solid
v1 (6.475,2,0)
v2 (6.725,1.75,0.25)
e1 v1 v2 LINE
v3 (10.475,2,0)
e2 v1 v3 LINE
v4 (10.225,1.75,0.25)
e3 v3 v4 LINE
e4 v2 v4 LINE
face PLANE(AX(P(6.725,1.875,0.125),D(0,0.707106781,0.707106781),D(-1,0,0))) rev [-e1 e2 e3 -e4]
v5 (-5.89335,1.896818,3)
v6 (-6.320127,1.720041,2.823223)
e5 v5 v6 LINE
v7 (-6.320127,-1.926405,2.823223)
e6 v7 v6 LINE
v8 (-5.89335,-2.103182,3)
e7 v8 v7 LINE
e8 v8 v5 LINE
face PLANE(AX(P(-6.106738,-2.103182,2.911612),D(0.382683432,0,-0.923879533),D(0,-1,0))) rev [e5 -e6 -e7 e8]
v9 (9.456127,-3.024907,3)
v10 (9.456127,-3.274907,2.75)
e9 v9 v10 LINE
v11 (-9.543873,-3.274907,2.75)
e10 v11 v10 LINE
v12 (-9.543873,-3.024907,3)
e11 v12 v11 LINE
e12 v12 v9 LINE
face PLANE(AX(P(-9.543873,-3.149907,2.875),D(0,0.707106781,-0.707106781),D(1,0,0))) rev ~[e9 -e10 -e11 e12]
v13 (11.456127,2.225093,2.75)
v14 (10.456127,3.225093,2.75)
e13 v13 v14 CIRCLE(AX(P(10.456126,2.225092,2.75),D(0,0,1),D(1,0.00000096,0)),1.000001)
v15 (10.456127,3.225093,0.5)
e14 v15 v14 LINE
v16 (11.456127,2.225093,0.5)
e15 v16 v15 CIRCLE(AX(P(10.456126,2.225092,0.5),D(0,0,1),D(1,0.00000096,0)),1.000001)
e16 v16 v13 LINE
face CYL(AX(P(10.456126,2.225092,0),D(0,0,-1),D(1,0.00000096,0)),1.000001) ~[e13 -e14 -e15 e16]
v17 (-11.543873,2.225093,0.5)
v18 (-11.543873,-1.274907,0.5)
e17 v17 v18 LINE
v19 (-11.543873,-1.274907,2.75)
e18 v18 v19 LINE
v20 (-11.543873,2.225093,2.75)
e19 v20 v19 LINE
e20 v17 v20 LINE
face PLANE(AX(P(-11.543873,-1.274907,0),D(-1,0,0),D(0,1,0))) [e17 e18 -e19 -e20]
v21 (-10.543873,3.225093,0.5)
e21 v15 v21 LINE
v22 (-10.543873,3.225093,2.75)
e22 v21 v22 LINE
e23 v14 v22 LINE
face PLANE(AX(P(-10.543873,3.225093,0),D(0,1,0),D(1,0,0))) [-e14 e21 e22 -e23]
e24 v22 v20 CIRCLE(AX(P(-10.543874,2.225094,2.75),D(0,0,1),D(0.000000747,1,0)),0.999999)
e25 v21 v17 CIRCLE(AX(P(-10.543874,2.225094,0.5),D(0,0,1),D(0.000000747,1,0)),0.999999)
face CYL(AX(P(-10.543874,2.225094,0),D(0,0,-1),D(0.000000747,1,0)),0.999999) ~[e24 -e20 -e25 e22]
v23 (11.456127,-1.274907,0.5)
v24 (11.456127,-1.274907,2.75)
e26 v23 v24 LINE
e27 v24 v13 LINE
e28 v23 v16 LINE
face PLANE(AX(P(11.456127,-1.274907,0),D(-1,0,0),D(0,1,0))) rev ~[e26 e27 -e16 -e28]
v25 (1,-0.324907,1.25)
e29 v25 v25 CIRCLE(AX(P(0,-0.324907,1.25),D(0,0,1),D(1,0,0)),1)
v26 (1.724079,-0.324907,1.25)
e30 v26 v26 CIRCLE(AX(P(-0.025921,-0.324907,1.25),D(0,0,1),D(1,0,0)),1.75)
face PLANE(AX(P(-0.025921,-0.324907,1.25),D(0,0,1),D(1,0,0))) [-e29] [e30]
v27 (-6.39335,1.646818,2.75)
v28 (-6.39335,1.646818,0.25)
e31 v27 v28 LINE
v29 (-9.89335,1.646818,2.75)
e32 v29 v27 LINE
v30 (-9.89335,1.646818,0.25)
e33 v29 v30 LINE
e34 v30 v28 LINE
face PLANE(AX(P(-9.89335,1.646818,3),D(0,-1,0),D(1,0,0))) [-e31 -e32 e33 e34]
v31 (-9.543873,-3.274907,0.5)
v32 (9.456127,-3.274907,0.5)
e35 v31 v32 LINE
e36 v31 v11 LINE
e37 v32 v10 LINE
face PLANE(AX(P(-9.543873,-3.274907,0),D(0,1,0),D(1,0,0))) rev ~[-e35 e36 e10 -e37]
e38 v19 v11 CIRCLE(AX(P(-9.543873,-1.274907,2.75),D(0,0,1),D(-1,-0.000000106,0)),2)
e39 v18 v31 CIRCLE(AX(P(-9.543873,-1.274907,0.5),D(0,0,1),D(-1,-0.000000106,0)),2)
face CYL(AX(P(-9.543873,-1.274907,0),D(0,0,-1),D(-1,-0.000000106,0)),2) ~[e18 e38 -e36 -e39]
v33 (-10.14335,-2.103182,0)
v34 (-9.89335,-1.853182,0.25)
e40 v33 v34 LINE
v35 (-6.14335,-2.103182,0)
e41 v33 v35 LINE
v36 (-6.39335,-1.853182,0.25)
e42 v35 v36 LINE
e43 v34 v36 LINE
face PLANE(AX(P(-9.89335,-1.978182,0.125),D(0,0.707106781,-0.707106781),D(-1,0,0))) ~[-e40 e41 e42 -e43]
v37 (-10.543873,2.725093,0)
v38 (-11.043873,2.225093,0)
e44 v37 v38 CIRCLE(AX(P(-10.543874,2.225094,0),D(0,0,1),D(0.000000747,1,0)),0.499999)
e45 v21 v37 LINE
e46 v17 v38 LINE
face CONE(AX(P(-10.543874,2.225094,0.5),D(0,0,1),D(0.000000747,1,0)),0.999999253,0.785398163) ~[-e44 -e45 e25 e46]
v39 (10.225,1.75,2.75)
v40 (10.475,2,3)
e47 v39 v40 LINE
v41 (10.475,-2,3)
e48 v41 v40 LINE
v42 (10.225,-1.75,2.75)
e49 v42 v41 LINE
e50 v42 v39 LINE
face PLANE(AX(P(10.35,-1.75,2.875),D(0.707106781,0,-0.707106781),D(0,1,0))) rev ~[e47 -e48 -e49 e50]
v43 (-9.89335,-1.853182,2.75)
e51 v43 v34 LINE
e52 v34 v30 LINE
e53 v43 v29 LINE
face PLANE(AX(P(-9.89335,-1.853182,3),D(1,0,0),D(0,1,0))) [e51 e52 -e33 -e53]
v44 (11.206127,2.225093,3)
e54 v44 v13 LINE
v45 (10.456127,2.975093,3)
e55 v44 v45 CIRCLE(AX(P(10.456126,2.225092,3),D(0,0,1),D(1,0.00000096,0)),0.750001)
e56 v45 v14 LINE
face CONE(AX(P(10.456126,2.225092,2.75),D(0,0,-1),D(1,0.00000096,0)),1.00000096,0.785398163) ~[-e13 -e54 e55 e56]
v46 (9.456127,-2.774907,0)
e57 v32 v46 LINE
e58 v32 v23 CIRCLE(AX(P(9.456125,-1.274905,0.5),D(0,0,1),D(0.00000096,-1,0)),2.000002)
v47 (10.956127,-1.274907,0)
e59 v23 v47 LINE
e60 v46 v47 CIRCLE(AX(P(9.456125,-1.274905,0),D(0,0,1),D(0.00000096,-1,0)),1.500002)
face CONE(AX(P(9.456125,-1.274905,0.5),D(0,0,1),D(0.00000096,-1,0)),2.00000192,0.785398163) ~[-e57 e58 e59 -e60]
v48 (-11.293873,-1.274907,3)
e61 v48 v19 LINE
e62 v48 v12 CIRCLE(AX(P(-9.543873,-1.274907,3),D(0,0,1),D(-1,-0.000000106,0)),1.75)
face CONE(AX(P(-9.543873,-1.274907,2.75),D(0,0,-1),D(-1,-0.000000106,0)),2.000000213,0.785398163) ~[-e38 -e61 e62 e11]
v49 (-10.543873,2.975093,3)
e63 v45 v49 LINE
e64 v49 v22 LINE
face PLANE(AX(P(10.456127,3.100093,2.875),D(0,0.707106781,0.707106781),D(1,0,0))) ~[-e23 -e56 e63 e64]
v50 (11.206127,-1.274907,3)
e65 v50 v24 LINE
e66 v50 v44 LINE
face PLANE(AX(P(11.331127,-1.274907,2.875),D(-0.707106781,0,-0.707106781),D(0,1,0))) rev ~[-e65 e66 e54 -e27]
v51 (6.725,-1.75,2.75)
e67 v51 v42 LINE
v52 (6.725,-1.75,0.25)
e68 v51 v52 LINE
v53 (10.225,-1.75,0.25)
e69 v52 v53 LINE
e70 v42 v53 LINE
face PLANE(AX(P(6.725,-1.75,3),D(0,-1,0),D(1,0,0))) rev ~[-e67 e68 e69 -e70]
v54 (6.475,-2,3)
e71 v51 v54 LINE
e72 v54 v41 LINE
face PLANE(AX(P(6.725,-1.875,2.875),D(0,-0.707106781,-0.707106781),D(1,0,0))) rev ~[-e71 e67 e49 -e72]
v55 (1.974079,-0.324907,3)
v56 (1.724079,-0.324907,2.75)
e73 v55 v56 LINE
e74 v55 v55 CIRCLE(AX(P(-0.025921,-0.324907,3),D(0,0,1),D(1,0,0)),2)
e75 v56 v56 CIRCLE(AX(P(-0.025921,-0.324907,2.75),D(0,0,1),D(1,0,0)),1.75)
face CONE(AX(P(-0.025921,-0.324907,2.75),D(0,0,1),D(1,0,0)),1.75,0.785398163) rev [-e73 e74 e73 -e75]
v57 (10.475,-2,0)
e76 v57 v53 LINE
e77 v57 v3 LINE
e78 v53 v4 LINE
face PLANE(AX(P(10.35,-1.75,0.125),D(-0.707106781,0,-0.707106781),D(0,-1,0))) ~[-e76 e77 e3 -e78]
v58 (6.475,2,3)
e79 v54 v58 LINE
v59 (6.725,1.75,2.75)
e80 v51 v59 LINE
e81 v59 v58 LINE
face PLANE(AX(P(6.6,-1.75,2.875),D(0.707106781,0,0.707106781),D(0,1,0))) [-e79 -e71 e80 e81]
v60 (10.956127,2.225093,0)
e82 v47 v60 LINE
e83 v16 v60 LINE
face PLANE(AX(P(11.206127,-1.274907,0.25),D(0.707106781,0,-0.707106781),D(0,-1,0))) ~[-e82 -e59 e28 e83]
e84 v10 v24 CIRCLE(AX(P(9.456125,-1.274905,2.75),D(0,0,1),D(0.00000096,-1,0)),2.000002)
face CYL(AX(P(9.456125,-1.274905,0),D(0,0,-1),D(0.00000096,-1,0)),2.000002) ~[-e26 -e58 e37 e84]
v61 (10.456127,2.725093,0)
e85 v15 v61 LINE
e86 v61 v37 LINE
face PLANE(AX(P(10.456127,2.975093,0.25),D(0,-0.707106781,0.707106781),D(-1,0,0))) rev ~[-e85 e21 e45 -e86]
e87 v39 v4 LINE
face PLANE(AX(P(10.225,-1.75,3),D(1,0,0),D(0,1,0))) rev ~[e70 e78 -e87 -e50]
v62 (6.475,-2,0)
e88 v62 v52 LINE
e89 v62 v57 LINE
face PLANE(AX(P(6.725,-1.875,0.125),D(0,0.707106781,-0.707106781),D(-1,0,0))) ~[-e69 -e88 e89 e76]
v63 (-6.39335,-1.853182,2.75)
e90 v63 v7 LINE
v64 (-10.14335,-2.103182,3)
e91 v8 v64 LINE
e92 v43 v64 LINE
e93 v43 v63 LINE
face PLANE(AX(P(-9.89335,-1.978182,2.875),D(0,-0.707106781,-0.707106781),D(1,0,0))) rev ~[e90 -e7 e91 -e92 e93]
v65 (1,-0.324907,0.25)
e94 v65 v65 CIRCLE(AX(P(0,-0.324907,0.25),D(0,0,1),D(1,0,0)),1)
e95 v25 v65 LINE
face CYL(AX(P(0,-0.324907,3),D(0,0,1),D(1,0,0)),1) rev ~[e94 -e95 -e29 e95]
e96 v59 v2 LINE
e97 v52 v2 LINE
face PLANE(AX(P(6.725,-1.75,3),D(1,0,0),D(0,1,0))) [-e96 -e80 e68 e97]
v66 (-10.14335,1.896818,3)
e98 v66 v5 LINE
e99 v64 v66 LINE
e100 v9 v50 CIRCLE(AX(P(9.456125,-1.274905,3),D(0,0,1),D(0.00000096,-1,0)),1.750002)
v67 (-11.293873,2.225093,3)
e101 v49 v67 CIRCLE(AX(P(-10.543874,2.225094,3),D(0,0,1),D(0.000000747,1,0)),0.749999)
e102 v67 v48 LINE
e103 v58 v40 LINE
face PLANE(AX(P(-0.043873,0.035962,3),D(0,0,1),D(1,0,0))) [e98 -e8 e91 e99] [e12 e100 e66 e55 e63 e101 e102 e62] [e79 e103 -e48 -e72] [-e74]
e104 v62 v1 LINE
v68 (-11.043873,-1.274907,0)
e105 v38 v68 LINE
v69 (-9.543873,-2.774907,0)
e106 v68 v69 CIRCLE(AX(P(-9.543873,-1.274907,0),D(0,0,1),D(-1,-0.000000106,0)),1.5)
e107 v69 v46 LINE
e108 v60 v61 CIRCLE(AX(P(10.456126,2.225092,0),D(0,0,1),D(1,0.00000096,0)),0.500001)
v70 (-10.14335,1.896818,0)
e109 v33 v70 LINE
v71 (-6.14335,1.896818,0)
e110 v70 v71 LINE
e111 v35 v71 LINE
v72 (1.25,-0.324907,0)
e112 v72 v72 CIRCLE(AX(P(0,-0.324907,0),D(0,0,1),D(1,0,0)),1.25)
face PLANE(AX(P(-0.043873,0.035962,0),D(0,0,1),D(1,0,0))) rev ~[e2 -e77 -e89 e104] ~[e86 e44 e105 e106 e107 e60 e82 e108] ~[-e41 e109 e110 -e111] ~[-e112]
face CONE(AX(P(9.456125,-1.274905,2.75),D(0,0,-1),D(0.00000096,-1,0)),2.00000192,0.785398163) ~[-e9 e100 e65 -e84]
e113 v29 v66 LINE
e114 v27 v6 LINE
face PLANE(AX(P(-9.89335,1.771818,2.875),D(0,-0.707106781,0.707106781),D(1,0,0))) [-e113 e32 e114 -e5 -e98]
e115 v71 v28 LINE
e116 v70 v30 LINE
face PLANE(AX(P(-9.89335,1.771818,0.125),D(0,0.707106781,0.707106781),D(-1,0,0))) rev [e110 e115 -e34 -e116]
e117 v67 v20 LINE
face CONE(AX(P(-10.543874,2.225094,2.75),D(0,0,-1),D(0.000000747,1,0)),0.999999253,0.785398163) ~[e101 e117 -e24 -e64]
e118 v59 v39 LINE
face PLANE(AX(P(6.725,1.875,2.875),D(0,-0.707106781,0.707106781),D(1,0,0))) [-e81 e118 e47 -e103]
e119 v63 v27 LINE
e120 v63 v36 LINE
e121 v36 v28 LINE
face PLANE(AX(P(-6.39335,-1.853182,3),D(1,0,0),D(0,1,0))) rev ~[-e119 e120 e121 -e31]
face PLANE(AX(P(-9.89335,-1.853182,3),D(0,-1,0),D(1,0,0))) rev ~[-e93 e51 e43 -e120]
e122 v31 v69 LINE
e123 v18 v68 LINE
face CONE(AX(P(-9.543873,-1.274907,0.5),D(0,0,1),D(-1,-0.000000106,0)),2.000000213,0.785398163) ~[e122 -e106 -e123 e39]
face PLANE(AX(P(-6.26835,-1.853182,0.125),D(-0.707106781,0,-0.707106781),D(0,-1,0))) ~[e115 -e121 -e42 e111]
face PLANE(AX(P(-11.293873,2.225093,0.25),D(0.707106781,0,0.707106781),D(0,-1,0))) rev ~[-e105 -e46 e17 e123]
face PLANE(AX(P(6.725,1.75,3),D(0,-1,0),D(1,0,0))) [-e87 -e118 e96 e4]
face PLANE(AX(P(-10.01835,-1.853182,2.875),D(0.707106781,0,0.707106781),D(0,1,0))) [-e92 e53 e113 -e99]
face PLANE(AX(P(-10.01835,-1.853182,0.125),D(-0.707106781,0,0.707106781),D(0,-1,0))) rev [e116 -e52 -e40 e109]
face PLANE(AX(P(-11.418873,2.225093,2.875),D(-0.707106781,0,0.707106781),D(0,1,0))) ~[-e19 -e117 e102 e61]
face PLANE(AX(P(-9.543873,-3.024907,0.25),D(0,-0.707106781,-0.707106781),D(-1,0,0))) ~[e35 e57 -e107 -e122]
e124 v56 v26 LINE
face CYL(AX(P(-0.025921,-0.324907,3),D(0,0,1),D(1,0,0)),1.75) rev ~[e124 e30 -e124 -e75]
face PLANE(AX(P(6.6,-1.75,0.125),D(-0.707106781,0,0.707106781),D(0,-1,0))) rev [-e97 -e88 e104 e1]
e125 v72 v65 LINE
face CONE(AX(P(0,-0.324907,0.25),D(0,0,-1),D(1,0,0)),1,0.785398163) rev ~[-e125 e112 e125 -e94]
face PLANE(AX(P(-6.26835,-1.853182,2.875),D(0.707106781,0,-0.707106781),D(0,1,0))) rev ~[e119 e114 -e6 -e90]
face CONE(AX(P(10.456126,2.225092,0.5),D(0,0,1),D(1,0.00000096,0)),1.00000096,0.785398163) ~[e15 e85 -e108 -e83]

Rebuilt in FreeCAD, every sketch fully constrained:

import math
import FreeCAD as App
import Part
import Sketcher
from FreeCAD import Vector


def edges_at(feature, points):
    """Names of the edges that pass closest to the given points."""
    edges = feature.Shape.Edges
    near = lambda p: min(range(len(edges)), key=lambda i: edges[i].distToShape(Part.Vertex(*p))[0])
    return sorted({f"Edge{near(p) + 1}" for p in points})

doc = App.newDocument("Part")
body = doc.addObject("PartDesign::Body", "Body")

# Sketch on XY plane
sketch1 = doc.addObject("Sketcher::SketchObject", "Sketch")
body.addObject(sketch1)
sketch1.AttachmentSupport = (doc.XY_Plane, [""])
sketch1.MapMode = "FlatFace"
sketch1.addGeometry([
    Part.LineSegment(Vector(-9.5, -3.3, 0), Vector(9.5, -3.3, 0)),  # 0
    Part.ArcOfCircle(Part.Circle(Vector(9.5, -1.3, 0), Vector(0, 0, 1), 2), math.radians(-90), math.radians(0)),  # 1
    Part.LineSegment(Vector(11.5, -1.3, 0), Vector(11.5, 2.2, 0)),  # 2
    Part.ArcOfCircle(Part.Circle(Vector(10.5, 2.2, 0), Vector(0, 0, 1), 1), math.radians(0), math.radians(90)),  # 3
    Part.LineSegment(Vector(10.5, 3.2, 0), Vector(-10.5, 3.2, 0)),  # 4
    Part.ArcOfCircle(Part.Circle(Vector(-10.5, 2.2, 0), Vector(0, 0, 1), 1), math.radians(90), math.radians(180)),  # 5
    Part.LineSegment(Vector(-11.5, 2.2, 0), Vector(-11.5, -1.3, 0)),  # 6
    Part.ArcOfCircle(Part.Circle(Vector(-9.5, -1.3, 0), Vector(0, 0, 1), 2), math.radians(-180), math.radians(-90)),  # 7
], False)
sketch1.addConstraint([
    Sketcher.Constraint("Tangent", 0, 2, 1, 1),
    Sketcher.Constraint("Tangent", 1, 2, 2, 1),
    Sketcher.Constraint("Tangent", 2, 2, 3, 1),
    Sketcher.Constraint("Tangent", 3, 2, 4, 1),
    Sketcher.Constraint("Tangent", 4, 2, 5, 1),
    Sketcher.Constraint("Tangent", 5, 2, 6, 1),
    Sketcher.Constraint("Tangent", 6, 2, 7, 1),
    Sketcher.Constraint("Tangent", 7, 2, 0, 1),
    Sketcher.Constraint("Horizontal", 0),
    Sketcher.Constraint("Vertical", 2),
    Sketcher.Constraint("Horizontal", 4),
    Sketcher.Constraint("Vertical", 6),
    Sketcher.Constraint("Equal", 3, 5),
    Sketcher.Constraint("Equal", 1, 7),
    Sketcher.Constraint("Radius", 1, 2.000002),
    Sketcher.Constraint("Radius", 3, 1.000001),
    Sketcher.Constraint("DistanceX", 0, 1, 0, 2, 19.0),
    Sketcher.Constraint("DistanceY", 2, 1, 2, 2, 3.5),
    Sketcher.Constraint("DistanceX", -1, 1, 1, 3, 9.456125),
    Sketcher.Constraint("DistanceY", 1, 3, -1, 1, 1.274905),
])
pad1 = doc.addObject("PartDesign::Pad", "Pad")
body.addObject(pad1)
pad1.Profile = sketch1
pad1.Length = 3
doc.recompute()

chamfer = doc.addObject("PartDesign::Chamfer", "Chamfer")
body.addObject(chamfer)
chamfer.Base = (pad1, edges_at(pad1, [
    (-0.044, -3.275, 0),
    (-10.958, -2.689, 0),
    (-10.544, 3.225, 1.5),
    (11.163, 2.932, 0),
    (11.456, 0.475, 0),
    (10.87, -2.689, 0),
]))
chamfer.Size = 0.5

# Sketch on XY plane
sketch2 = doc.addObject("Sketcher::SketchObject", "Sketch001")
body.addObject(sketch2)
sketch2.AttachmentSupport = (doc.XY_Plane, [""])
sketch2.MapMode = "FlatFace"
sketch2.AttachmentOffset = App.Placement(Vector(0, 0, 3), App.Rotation())
sketch2.addGeometry([
    Part.LineSegment(Vector(-9.9, 1.6, 0), Vector(-9.9, -1.9, 0)),  # 0
    Part.LineSegment(Vector(-9.9, -1.9, 0), Vector(-6.4, -1.9, 0)),  # 1
    Part.LineSegment(Vector(-6.4, -1.9, 0), Vector(-6.4, 1.6, 0)),  # 2
    Part.LineSegment(Vector(-6.4, 1.6, 0), Vector(-9.9, 1.6, 0)),  # 3
    Part.LineSegment(Vector(6.7, 1.8, 0), Vector(6.7, -1.8, 0)),  # 4
    Part.LineSegment(Vector(6.7, -1.8, 0), Vector(10.2, -1.8, 0)),  # 5
    Part.LineSegment(Vector(10.2, -1.8, 0), Vector(10.2, 1.8, 0)),  # 6
    Part.LineSegment(Vector(10.2, 1.8, 0), Vector(6.7, 1.8, 0)),  # 7
], False)
sketch2.addConstraint([
    Sketcher.Constraint("Coincident", 0, 2, 1, 1),
    Sketcher.Constraint("Coincident", 1, 2, 2, 1),
    Sketcher.Constraint("Coincident", 2, 2, 3, 1),
    Sketcher.Constraint("Coincident", 3, 2, 0, 1),
    Sketcher.Constraint("Coincident", 4, 2, 5, 1),
    Sketcher.Constraint("Coincident", 5, 2, 6, 1),
    Sketcher.Constraint("Coincident", 6, 2, 7, 1),
    Sketcher.Constraint("Coincident", 7, 2, 4, 1),
    Sketcher.Constraint("Vertical", 0),
    Sketcher.Constraint("Horizontal", 1),
    Sketcher.Constraint("Vertical", 2),
    Sketcher.Constraint("Horizontal", 3),
    Sketcher.Constraint("Vertical", 4),
    Sketcher.Constraint("Horizontal", 5),
    Sketcher.Constraint("Vertical", 6),
    Sketcher.Constraint("Horizontal", 7),
    Sketcher.Constraint("Equal", 3, 5),
    Sketcher.Constraint("Equal", 7, 0),
    Sketcher.Constraint("Equal", 2, 4),
    Sketcher.Constraint("DistanceX", 1, 1, 1, 2, 3.5),
    Sketcher.Constraint("DistanceY", 4, 2, -1, 1, 1.75),
    Sketcher.Constraint("DistanceX", -1, 1, 4, 2, 6.725),
    Sketcher.Constraint("DistanceX", 0, 2, -1, 1, 9.89335),
    Sketcher.Constraint("DistanceY", 0, 2, -1, 1, 1.853182),
])
pocket1 = doc.addObject("PartDesign::Pocket", "Pocket")
body.addObject(pocket1)
pocket1.Profile = sketch2
pocket1.Type = "ThroughAll"

# Sketch on XY plane
sketch3 = doc.addObject("Sketcher::SketchObject", "Sketch002")
body.addObject(sketch3)
sketch3.AttachmentSupport = (doc.XY_Plane, [""])
sketch3.MapMode = "FlatFace"
sketch3.AttachmentOffset = App.Placement(Vector(0, 0, 3), App.Rotation())
sketch3.addGeometry(Part.Circle(Vector(0, -0.3, 0), Vector(0, 0, 1), 1), False)
sketch3.addConstraint([
    Sketcher.Constraint("PointOnObject", 0, 3, -2),
    Sketcher.Constraint("Diameter", 0, 2.0),
    Sketcher.Constraint("DistanceY", 0, 3, -1, 1, 0.324907),
])
pocket2 = doc.addObject("PartDesign::Pocket", "Pocket001")
body.addObject(pocket2)
pocket2.Profile = sketch3
pocket2.Type = "ThroughAll"
doc.recompute()

chamfer2 = doc.addObject("PartDesign::Chamfer", "Chamfer001")
body.addObject(chamfer2)
chamfer2.Base = (pocket2, edges_at(pocket2, [
    (11.456, 0.475, 3),
    (10.87, -2.689, 3),
    (-0.044, -3.275, 3),
    (-10.958, -2.689, 3),
    (-11.544, 0.475, 3),
    (-11.251, 2.932, 3),
    (-0.044, 3.225, 3),
    (11.163, 2.932, 3),
]))
chamfer2.Size = 0.25
doc.recompute()

chamfer3 = doc.addObject("PartDesign::Chamfer", "Chamfer002")
body.addObject(chamfer3)
chamfer3.Base = (chamfer2, edges_at(chamfer2, [
    (8.475, -1.75, 0),
    (6.725, 0, 0),
    (8.475, 1.75, 0),
    (10.225, 0, 0),
    (-9.893, -0.103, 0),
    (-8.143, 1.647, 0),
    (-1, -0.325, 0),
    (-6.393, -0.103, 0),
    (-8.143, -1.853, 0),
]))
chamfer3.Size = 0.25
doc.recompute()

chamfer4 = doc.addObject("PartDesign::Chamfer", "Chamfer003")
body.addObject(chamfer4)
chamfer4.Base = (chamfer3, edges_at(chamfer3, [
    (6.725, 0, 3),
    (8.475, -1.75, 3),
    (10.225, 0, 3),
    (8.475, 1.75, 3),
    (-6.393, -0.103, 3),
    (-8.143, -1.853, 3),
    (-9.893, -0.103, 3),
    (-8.143, 1.647, 3),
]))
chamfer4.Size = 0.25

# Sketch on XY plane
sketch4 = doc.addObject("Sketcher::SketchObject", "Sketch003")
body.addObject(sketch4)
sketch4.AttachmentSupport = (doc.XY_Plane, [""])
sketch4.MapMode = "FlatFace"
sketch4.AttachmentOffset = App.Placement(Vector(0, 0, 3), App.Rotation())
sketch4.addGeometry(Part.Circle(Vector(0, -0.3, 0), Vector(0, 0, 1), 1.8), False)
sketch4.addConstraint([
    Sketcher.Constraint("Diameter", 0, 3.5),
    Sketcher.Constraint("DistanceX", 0, 3, -1, 1, 0.025921),
    Sketcher.Constraint("DistanceY", 0, 3, -1, 1, 0.324907),
])
pocket3 = doc.addObject("PartDesign::Pocket", "Pocket002")
body.addObject(pocket3)
pocket3.Profile = sketch4
pocket3.Length = 1.75
doc.recompute()

chamfer5 = doc.addObject("PartDesign::Chamfer", "Chamfer004")
body.addObject(chamfer5)
chamfer5.Base = (pocket3, edges_at(pocket3, [(-6.143, -0.103, 3)]))
chamfer5.Size = 0.25
doc.recompute()

chamfer6 = doc.addObject("PartDesign::Chamfer", "Chamfer005")
body.addObject(chamfer6)
chamfer6.Base = (chamfer5, edges_at(chamfer5, [(-1.776, -0.325, 3)]))
chamfer6.Size = 0.25

doc.recompute()
